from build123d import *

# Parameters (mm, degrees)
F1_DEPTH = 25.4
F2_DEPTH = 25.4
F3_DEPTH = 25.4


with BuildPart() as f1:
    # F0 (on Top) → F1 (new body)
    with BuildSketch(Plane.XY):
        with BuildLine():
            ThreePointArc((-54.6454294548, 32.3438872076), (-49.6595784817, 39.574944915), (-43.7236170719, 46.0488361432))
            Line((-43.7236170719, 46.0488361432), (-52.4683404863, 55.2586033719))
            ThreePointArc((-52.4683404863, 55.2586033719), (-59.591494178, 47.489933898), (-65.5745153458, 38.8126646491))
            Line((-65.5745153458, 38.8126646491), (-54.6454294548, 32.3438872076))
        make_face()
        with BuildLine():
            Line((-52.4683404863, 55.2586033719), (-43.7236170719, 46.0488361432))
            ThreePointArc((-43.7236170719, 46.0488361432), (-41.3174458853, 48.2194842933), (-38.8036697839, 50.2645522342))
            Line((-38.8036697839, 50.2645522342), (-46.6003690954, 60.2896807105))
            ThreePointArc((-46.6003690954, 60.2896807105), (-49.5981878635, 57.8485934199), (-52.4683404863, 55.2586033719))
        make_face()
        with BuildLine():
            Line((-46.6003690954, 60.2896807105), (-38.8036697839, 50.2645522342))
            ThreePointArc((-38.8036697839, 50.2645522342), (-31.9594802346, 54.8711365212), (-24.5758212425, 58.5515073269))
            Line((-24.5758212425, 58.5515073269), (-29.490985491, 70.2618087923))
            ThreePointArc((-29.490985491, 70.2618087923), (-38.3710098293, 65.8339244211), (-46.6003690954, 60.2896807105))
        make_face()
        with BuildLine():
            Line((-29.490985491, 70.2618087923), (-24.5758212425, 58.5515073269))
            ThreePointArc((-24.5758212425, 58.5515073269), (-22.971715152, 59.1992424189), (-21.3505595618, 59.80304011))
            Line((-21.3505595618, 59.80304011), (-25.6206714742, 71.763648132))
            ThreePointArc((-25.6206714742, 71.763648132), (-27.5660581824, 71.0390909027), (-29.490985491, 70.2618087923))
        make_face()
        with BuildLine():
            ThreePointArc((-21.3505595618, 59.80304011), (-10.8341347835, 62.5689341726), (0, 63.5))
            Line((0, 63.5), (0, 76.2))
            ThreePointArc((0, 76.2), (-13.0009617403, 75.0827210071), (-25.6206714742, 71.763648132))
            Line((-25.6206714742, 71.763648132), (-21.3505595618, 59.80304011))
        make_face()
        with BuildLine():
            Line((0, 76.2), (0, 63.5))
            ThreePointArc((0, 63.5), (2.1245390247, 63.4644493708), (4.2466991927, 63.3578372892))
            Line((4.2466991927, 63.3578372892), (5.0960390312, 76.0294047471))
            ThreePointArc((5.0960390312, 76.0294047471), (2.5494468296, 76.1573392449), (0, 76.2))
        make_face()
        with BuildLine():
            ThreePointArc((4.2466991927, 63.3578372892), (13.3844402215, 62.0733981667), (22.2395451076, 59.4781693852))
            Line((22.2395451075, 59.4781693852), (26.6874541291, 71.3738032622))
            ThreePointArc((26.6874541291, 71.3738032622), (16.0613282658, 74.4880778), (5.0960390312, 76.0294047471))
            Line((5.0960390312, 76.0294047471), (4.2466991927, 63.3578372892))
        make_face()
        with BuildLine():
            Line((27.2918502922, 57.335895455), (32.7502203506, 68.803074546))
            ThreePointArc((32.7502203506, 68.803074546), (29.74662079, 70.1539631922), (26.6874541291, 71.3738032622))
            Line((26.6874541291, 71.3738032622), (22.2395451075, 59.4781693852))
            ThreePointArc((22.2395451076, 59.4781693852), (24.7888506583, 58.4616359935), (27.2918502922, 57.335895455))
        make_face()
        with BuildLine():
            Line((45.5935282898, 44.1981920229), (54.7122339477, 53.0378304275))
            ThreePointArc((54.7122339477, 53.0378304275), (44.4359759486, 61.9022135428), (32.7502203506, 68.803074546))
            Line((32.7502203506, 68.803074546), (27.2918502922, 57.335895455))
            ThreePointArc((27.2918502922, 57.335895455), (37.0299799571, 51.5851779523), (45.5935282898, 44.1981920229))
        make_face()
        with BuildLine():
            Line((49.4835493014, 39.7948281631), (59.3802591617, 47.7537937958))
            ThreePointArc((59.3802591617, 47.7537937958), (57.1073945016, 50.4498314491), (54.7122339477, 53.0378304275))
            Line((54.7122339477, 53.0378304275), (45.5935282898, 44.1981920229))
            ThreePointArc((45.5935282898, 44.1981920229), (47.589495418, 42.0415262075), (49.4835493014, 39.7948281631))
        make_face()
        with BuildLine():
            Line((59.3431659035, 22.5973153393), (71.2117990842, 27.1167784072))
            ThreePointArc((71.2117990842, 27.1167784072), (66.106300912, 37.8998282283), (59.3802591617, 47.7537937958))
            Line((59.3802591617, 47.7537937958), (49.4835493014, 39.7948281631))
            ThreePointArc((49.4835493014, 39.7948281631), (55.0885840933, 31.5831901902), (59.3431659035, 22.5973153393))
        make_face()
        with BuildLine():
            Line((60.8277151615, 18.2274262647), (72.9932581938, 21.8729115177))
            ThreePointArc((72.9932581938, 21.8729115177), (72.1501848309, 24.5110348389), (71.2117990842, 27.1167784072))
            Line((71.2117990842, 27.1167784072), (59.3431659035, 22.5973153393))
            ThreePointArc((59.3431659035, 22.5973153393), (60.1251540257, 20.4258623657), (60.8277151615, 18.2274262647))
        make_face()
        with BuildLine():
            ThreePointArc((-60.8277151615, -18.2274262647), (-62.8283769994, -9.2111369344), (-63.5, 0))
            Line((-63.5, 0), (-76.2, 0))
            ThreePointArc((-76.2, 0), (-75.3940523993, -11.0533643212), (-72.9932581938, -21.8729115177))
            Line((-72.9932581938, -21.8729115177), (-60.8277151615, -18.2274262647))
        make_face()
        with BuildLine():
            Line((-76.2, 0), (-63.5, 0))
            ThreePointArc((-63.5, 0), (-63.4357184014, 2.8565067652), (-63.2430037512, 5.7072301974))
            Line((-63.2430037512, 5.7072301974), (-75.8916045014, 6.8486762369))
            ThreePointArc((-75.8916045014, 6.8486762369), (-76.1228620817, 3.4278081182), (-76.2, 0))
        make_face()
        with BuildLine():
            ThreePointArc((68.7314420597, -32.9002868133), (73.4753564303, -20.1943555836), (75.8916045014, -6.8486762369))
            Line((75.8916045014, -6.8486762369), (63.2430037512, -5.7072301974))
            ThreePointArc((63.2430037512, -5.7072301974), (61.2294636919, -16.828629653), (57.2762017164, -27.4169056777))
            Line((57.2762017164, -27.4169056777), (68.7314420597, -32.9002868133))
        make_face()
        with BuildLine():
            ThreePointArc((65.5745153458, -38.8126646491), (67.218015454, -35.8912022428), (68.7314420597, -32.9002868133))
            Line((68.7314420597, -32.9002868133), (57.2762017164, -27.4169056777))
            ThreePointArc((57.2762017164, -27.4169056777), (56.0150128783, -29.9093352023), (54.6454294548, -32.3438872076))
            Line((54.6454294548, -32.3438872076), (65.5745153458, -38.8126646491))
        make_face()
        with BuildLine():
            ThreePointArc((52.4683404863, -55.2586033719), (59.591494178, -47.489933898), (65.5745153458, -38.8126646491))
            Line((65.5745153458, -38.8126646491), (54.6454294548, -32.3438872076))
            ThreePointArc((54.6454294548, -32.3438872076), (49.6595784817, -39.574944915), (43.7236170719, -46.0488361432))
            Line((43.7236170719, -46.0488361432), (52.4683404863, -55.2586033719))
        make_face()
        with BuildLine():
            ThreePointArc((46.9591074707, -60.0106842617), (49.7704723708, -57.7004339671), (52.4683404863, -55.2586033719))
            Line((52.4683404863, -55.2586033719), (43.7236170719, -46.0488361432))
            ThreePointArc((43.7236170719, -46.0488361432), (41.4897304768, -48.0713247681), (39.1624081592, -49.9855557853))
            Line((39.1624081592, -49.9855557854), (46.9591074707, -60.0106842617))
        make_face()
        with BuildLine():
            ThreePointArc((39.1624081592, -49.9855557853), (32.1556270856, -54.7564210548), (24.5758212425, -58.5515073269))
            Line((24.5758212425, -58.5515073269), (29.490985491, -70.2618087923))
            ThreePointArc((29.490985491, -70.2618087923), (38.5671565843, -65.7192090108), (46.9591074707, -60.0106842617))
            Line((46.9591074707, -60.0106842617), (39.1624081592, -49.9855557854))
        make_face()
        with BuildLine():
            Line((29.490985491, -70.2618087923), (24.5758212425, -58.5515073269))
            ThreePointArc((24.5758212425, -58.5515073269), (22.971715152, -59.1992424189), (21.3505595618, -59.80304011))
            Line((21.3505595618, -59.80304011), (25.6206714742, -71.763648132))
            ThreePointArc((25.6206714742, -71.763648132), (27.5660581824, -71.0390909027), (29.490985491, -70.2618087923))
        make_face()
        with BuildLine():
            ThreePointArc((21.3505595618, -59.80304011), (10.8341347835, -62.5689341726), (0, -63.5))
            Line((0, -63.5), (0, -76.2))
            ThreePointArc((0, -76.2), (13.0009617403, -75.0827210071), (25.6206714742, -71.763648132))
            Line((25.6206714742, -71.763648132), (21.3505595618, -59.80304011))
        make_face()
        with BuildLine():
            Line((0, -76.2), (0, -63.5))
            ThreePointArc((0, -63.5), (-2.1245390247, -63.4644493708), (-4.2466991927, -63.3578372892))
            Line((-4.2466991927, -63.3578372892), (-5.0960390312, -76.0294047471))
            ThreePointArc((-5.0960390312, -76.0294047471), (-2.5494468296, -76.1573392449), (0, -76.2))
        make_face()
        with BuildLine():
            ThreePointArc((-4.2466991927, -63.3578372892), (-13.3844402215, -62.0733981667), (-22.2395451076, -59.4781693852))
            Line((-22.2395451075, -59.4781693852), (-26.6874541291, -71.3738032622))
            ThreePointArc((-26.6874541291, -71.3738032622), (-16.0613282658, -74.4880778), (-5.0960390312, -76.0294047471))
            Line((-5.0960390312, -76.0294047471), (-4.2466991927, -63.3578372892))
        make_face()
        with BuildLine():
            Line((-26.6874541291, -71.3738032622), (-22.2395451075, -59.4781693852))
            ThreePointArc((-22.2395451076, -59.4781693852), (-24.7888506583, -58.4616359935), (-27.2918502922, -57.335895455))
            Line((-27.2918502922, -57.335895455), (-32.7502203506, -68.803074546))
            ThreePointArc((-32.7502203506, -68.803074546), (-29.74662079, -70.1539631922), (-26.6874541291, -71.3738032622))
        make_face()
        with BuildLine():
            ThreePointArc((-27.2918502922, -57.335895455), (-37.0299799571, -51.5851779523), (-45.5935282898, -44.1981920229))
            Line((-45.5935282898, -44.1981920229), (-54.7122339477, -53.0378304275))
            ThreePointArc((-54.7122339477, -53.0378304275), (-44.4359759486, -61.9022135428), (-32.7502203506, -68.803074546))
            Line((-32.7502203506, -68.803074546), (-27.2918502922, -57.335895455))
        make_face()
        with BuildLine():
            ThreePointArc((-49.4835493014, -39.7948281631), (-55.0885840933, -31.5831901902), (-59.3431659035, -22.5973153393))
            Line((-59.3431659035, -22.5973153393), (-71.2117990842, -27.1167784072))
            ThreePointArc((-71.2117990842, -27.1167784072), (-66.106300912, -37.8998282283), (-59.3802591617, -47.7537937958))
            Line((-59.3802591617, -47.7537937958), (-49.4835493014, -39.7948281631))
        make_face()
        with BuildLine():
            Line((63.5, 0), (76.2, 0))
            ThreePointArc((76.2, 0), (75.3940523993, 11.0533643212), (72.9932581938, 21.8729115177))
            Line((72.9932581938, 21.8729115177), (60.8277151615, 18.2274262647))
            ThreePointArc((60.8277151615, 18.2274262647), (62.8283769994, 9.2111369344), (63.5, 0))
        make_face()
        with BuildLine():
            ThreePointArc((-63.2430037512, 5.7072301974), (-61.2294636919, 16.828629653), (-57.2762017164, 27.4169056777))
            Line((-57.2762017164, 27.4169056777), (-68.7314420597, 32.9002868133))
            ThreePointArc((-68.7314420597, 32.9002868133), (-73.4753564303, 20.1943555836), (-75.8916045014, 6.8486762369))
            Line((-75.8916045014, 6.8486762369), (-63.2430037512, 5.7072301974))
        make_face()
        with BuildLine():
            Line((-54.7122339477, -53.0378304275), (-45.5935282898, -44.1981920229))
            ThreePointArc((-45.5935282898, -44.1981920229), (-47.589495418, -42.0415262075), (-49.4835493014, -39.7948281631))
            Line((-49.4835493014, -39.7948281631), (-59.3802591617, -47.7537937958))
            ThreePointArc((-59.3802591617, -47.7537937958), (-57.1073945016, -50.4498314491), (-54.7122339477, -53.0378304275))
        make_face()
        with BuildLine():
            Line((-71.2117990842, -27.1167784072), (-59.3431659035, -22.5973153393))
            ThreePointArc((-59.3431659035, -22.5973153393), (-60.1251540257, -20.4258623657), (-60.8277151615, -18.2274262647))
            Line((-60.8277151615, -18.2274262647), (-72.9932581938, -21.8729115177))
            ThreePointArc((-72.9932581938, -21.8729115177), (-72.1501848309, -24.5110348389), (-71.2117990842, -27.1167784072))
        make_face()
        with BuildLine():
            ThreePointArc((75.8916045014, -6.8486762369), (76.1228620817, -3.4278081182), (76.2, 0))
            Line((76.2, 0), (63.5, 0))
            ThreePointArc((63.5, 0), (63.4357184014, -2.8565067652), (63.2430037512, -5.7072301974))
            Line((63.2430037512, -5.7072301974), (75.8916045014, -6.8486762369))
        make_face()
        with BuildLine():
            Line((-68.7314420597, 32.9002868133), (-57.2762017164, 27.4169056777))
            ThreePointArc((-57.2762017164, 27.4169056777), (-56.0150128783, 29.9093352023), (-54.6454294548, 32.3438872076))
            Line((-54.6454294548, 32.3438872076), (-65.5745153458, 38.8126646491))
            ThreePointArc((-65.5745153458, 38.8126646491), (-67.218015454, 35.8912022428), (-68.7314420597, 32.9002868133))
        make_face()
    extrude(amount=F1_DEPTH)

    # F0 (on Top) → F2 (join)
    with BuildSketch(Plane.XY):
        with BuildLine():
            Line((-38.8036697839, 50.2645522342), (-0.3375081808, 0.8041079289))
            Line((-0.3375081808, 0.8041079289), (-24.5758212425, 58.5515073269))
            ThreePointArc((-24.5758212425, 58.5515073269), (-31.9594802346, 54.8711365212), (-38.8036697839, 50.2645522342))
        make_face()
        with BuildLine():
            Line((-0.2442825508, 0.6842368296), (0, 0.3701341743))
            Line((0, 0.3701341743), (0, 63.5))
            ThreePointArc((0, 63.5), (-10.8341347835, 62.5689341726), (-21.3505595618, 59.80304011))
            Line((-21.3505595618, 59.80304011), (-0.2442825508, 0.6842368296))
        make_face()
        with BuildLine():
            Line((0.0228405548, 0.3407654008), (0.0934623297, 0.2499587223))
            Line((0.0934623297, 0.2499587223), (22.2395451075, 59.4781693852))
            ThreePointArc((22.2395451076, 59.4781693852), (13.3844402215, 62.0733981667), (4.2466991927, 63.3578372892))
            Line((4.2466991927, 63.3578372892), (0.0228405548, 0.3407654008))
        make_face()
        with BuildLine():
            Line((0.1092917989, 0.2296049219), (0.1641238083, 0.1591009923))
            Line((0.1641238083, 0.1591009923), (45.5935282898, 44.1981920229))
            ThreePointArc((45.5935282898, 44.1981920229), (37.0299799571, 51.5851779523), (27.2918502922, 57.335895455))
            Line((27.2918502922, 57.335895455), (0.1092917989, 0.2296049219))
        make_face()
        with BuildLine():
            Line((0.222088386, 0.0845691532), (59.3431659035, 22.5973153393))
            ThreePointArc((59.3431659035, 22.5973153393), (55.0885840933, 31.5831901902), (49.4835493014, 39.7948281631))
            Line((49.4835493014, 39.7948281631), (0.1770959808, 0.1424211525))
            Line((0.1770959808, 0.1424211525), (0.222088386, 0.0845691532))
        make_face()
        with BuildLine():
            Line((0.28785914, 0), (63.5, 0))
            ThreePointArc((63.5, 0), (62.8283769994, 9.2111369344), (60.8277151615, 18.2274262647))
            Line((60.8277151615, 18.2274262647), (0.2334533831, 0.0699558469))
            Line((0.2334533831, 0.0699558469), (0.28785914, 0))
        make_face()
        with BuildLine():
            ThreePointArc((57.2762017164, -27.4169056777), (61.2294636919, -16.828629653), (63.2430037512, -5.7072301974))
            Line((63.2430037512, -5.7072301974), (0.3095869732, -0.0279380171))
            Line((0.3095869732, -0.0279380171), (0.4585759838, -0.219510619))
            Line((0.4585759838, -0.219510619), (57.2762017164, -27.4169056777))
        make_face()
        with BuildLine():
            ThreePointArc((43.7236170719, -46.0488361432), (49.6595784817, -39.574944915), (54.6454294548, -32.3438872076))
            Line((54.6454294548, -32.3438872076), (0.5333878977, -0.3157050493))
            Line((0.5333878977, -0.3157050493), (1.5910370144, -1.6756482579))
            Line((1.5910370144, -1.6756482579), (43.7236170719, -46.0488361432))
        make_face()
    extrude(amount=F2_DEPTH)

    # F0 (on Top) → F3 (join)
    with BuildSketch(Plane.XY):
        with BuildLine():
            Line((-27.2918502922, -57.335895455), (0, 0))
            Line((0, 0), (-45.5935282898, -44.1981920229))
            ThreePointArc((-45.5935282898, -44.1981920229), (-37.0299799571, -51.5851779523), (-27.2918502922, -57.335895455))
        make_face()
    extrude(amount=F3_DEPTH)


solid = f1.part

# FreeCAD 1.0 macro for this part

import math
import FreeCAD as App
import Part
import Sketcher

V = App.Vector
Q = App.Units.Quantity

doc = App.newDocument("Part")
params = doc.addObject("Spreadsheet::Sheet", "Params")
for row, (alias, value) in enumerate([
    ("sketch1_radius", "3 in"),
    ("sketch1_radius2", "2.5 in"),
    ("pad1_length", "1 in"),
    ("sketch2_radius", "2.5 in"),
    ("sketch2_radius2", "2.5 in"),
    ("sketch2_radius3", "2.5 in"),
    ("sketch2_radius4", "2.5 in"),
    ("sketch2_radius5", "2.5 in"),
    ("pad2_length", "1 in"),
    ("sketch3_radius", "2.5 in"),
    ("pad3_length", "1 in"),
], start=1):
    params.set(f"A{row}", alias)
    params.set(f"B{row}", "=" + value)
    params.setAlias(f"B{row}", alias)

body = doc.addObject("PartDesign::Body", "Body")

# Sketch on XY plane
sketch1 = body.newObject("Sketcher::SketchObject", "Sketch")
sketch1.AttachmentSupport = (doc.getObject("XY_Plane"), [""])
sketch1.MapMode = "FlatFace"
sketch1.addGeometry([
    Part.ArcOfCircle(Part.Circle(V(0, 0, 0), V(0, 0, 1), 76.2), math.radians(154), math.radians(175)),  # 0
    Part.ArcOfCircle(Part.Circle(V(0, 0, 0), V(0, 0, 1), 76.2), math.radians(174.84), math.radians(180)),  # 1
    Part.ArcOfCircle(Part.Circle(V(0, 0, 0), V(0, 0, 1), 76.2), math.radians(180), math.radians(196.68)),  # 2
    Part.ArcOfCircle(Part.Circle(V(0, 0, 0), V(0, 0, 1), 76.2), math.radians(-163.32), math.radians(-159.15)),  # 3
    Part.ArcOfCircle(Part.Circle(V(0, 0, 0), V(0, 0, 1), 76.2), math.radians(-159.15), math.radians(-141.19)),  # 4
    Part.ArcOfCircle(Part.Circle(V(0, 0, 0), V(0, 0, 1), 76.2), math.radians(-141.19), math.radians(-135.89)),  # 5
    Part.ArcOfCircle(Part.Circle(V(0, 0, 0), V(0, 0, 1), 76.2), math.radians(-136), math.radians(-115)),  # 6
    Part.ArcOfCircle(Part.Circle(V(0, 0, 0), V(0, 0, 1), 76.2), math.radians(-115.45), math.radians(-110.5)),  # 7
    Part.ArcOfCircle(Part.Circle(V(0, 0, 0), V(0, 0, 1), 76.2), math.radians(-110.5), math.radians(-93.83)),  # 8
    Part.ArcOfCircle(Part.Circle(V(0, 0, 0), V(0, 0, 1), 76.2), math.radians(-93.83), math.radians(-90)),  # 9
    Part.ArcOfCircle(Part.Circle(V(0, 0, 0), V(0, 0, 1), 76.2), math.radians(-90), math.radians(-70.35)),  # 10
    Part.ArcOfCircle(Part.Circle(V(0, 0, 0), V(0, 0, 1), 76.2), math.radians(-70.35), math.radians(-67.23)),  # 11
    Part.ArcOfCircle(Part.Circle(V(0, 0, 0), V(0, 0, 1), 76.2), math.radians(-67.23), math.radians(-51.96)),  # 12
    Part.ArcOfCircle(Part.Circle(V(0, 0, 0), V(0, 0, 1), 76.2), math.radians(-51.96), math.radians(-46.48)),  # 13
    Part.ArcOfCircle(Part.Circle(V(0, 0, 0), V(0, 0, 1), 76.2), math.radians(-46.48), math.radians(-30.62)),  # 14
    Part.ArcOfCircle(Part.Circle(V(0, 0, 0), V(0, 0, 1), 76.2), math.radians(-30.62), math.radians(-25.58)),  # 15
    Part.ArcOfCircle(Part.Circle(V(0, 0, 0), V(0, 0, 1), 76.2), math.radians(-26), math.radians(-5)),  # 16
    Part.ArcOfCircle(Part.Circle(V(0, 0, 0), V(0, 0, 1), 76.2), math.radians(-5.16), math.radians(0)),  # 17
    Part.ArcOfCircle(Part.Circle(V(0, 0, 0), V(0, 0, 1), 76.2), math.radians(0), math.radians(16.68)),  # 18
    Part.ArcOfCircle(Part.Circle(V(0, 0, 0), V(0, 0, 1), 76.2), math.radians(16.68), math.radians(20.85)),  # 19
    Part.ArcOfCircle(Part.Circle(V(0, 0, 0), V(0, 0, 1), 76.2), math.radians(20.85), math.radians(38.81)),  # 20
    Part.ArcOfCircle(Part.Circle(V(0, 0, 0), V(0, 0, 1), 76.2), math.radians(38.81), math.radians(44.11)),  # 21
    Part.ArcOfCircle(Part.Circle(V(0, 0, 0), V(0, 0, 1), 76.2), math.radians(44), math.radians(65)),  # 22
    Part.ArcOfCircle(Part.Circle(V(0, 0, 0), V(0, 0, 1), 76.2), math.radians(64.55), math.radians(69.5)),  # 23
    Part.ArcOfCircle(Part.Circle(V(0, 0, 0), V(0, 0, 1), 76.2), math.radians(69.5), math.radians(86.17)),  # 24
    Part.ArcOfCircle(Part.Circle(V(0, 0, 0), V(0, 0, 1), 76.2), math.radians(86.17), math.radians(90)),  # 25
    Part.ArcOfCircle(Part.Circle(V(0, 0, 0), V(0, 0, 1), 76.2), math.radians(90), math.radians(109.65)),  # 26
    Part.ArcOfCircle(Part.Circle(V(0, 0, 0), V(0, 0, 1), 76.2), math.radians(109.65), math.radians(112.77)),  # 27
    Part.ArcOfCircle(Part.Circle(V(0, 0, 0), V(0, 0, 1), 76.2), math.radians(112.77), math.radians(127.7)),  # 28
    Part.ArcOfCircle(Part.Circle(V(0, 0, 0), V(0, 0, 1), 76.2), math.radians(127.7), math.radians(133.52)),  # 29
    Part.ArcOfCircle(Part.Circle(V(0, 0, 0), V(0, 0, 1), 76.2), math.radians(133.52), math.radians(149.38)),  # 30
    Part.ArcOfCircle(Part.Circle(V(0, 0, 0), V(0, 0, 1), 76.2), math.radians(149.38), math.radians(154.42)),  # 31
    Part.ArcOfCircle(Part.Circle(V(0, 0, 0), V(0, 0, 1), 63.5), math.radians(133.52), math.radians(149.38)),  # 32
    Part.ArcOfCircle(Part.Circle(V(0, 0, 0), V(0, 0, 1), 63.5), math.radians(127.67), math.radians(133.52)),  # 33
    Part.ArcOfCircle(Part.Circle(V(0, 0, 0), V(0, 0, 1), 63.5), math.radians(112.77), math.radians(127.67)),  # 34
    Part.ArcOfCircle(Part.Circle(V(0, 0, 0), V(0, 0, 1), 63.5), math.radians(109.65), math.radians(112.77)),  # 35
    Part.ArcOfCircle(Part.Circle(V(0, 0, 0), V(0, 0, 1), 63.5), math.radians(90), math.radians(109.65)),  # 36
    Part.ArcOfCircle(Part.Circle(V(0, 0, 0), V(0, 0, 1), 63.5), math.radians(86.17), math.radians(90)),  # 37
    Part.ArcOfCircle(Part.Circle(V(0, 0, 0), V(0, 0, 1), 63.5), math.radians(69.5), math.radians(86.17)),  # 38
    Part.ArcOfCircle(Part.Circle(V(0, 0, 0), V(0, 0, 1), 63.5), math.radians(64.55), math.radians(69.5)),  # 39
    Part.ArcOfCircle(Part.Circle(V(0, 0, 0), V(0, 0, 1), 63.5), math.radians(44), math.radians(65)),  # 40
    Part.ArcOfCircle(Part.Circle(V(0, 0, 0), V(0, 0, 1), 63.5), math.radians(38.81), math.radians(44.11)),  # 41
    Part.ArcOfCircle(Part.Circle(V(0, 0, 0), V(0, 0, 1), 63.5), math.radians(20.85), math.radians(38.81)),  # 42
    Part.ArcOfCircle(Part.Circle(V(0, 0, 0), V(0, 0, 1), 63.5), math.radians(16.68), math.radians(20.85)),  # 43
    Part.ArcOfCircle(Part.Circle(V(0, 0, 0), V(0, 0, 1), 63.5), math.radians(0), math.radians(16.68)),  # 44
    Part.ArcOfCircle(Part.Circle(V(0, 0, 0), V(0, 0, 1), 63.5), math.radians(-26), math.radians(0)),  # 45
    Part.ArcOfCircle(Part.Circle(V(0, 0, 0), V(0, 0, 1), 63.5), math.radians(-30.62), math.radians(-25.58)),  # 46
    Part.ArcOfCircle(Part.Circle(V(0, 0, 0), V(0, 0, 1), 63.5), math.radians(-46.48), math.radians(-30.62)),  # 47
    Part.ArcOfCircle(Part.Circle(V(0, 0, 0), V(0, 0, 1), 63.5), math.radians(-51.92), math.radians(-46.48)),  # 48
    Part.ArcOfCircle(Part.Circle(V(0, 0, 0), V(0, 0, 1), 63.5), math.radians(-67.23), math.radians(-51.92)),  # 49
    Part.ArcOfCircle(Part.Circle(V(0, 0, 0), V(0, 0, 1), 63.5), math.radians(-70.35), math.radians(-67.23)),  # 50
    Part.ArcOfCircle(Part.Circle(V(0, 0, 0), V(0, 0, 1), 63.5), math.radians(-90), math.radians(-70.35)),  # 51
    Part.ArcOfCircle(Part.Circle(V(0, 0, 0), V(0, 0, 1), 63.5), math.radians(-93.83), math.radians(-90)),  # 52
    Part.ArcOfCircle(Part.Circle(V(0, 0, 0), V(0, 0, 1), 63.5), math.radians(-110.5), math.radians(-93.83)),  # 53
    Part.ArcOfCircle(Part.Circle(V(0, 0, 0), V(0, 0, 1), 63.5), math.radians(-115.45), math.radians(-110.5)),  # 54
    Part.ArcOfCircle(Part.Circle(V(0, 0, 0), V(0, 0, 1), 63.5), math.radians(-136), math.radians(-115)),  # 55
    Part.ArcOfCircle(Part.Circle(V(0, 0, 0), V(0, 0, 1), 63.5), math.radians(-141.19), math.radians(-135.89)),  # 56
    Part.ArcOfCircle(Part.Circle(V(0, 0, 0), V(0, 0, 1), 63.5), math.radians(-159.15), math.radians(-141.19)),  # 57
    Part.ArcOfCircle(Part.Circle(V(0, 0, 0), V(0, 0, 1), 63.5), math.radians(-163.32), math.radians(-159.15)),  # 58
    Part.ArcOfCircle(Part.Circle(V(0, 0, 0), V(0, 0, 1), 63.5), math.radians(180), math.radians(196.68)),  # 59
    Part.ArcOfCircle(Part.Circle(V(0, 0, 0), V(0, 0, 1), 63.5), math.radians(154), math.radians(180)),  # 60
    Part.ArcOfCircle(Part.Circle(V(0, 0, 0), V(0, 0, 1), 63.5), math.radians(149.38), math.radians(154.42)),  # 61
], False)
sketch1.addConstraint([
    Sketcher.Constraint("Tangent", 0, 2, 1, 1),
    Sketcher.Constraint("Tangent", 1, 2, 2, 1),
    Sketcher.Constraint("Tangent", 2, 2, 3, 1),
    Sketcher.Constraint("Tangent", 3, 2, 4, 1),
    Sketcher.Constraint("Tangent", 4, 2, 5, 1),
    Sketcher.Constraint("Tangent", 5, 2, 6, 1),
    Sketcher.Constraint("Tangent", 6, 2, 7, 1),
    Sketcher.Constraint("Tangent", 7, 2, 8, 1),
    Sketcher.Constraint("Tangent", 8, 2, 9, 1),
    Sketcher.Constraint("Tangent", 9, 2, 10, 1),
    Sketcher.Constraint("Tangent", 10, 2, 11, 1),
    Sketcher.Constraint("Tangent", 11, 2, 12, 1),
    Sketcher.Constraint("Tangent", 12, 2, 13, 1),
    Sketcher.Constraint("Tangent", 13, 2, 14, 1),
    Sketcher.Constraint("Tangent", 14, 2, 15, 1),
    Sketcher.Constraint("Tangent", 15, 2, 16, 1),
    Sketcher.Constraint("Tangent", 16, 2, 17, 1),
    Sketcher.Constraint("Tangent", 17, 2, 18, 1),
    Sketcher.Constraint("Tangent", 18, 2, 19, 1),
    Sketcher.Constraint("Tangent", 19, 2, 20, 1),
    Sketcher.Constraint("Tangent", 20, 2, 21, 1),
    Sketcher.Constraint("Tangent", 21, 2, 22, 1),
    Sketcher.Constraint("Tangent", 22, 2, 23, 1),
    Sketcher.Constraint("Tangent", 23, 2, 24, 1),
    Sketcher.Constraint("Tangent", 24, 2, 25, 1),
    Sketcher.Constraint("Tangent", 25, 2, 26, 1),
    Sketcher.Constraint("Tangent", 26, 2, 27, 1),
    Sketcher.Constraint("Tangent", 27, 2, 28, 1),
    Sketcher.Constraint("Tangent", 28, 2, 29, 1),
    Sketcher.Constraint("Tangent", 29, 2, 30, 1),
    Sketcher.Constraint("Tangent", 30, 2, 31, 1),
    Sketcher.Constraint("Tangent", 31, 2, 0, 1),
    Sketcher.Constraint("Tangent", 32, 1, 33, 2),
    Sketcher.Constraint("Tangent", 33, 1, 34, 2),
    Sketcher.Constraint("Tangent", 34, 1, 35, 2),
    Sketcher.Constraint("Tangent", 35, 1, 36, 2),
    Sketcher.Constraint("Tangent", 36, 1, 37, 2),
    Sketcher.Constraint("Tangent", 37, 1, 38, 2),
    Sketcher.Constraint("Tangent", 38, 1, 39, 2),
    Sketcher.Constraint("Tangent", 39, 1, 40, 2),
    Sketcher.Constraint("Tangent", 40, 1, 41, 2),
    Sketcher.Constraint("Tangent", 41, 1, 42, 2),
    Sketcher.Constraint("Tangent", 42, 1, 43, 2),
    Sketcher.Constraint("Tangent", 43, 1, 44, 2),
    Sketcher.Constraint("Tangent", 44, 1, 45, 2),
    Sketcher.Constraint("Tangent", 45, 1, 46, 2),
    Sketcher.Constraint("Tangent", 46, 1, 47, 2),
    Sketcher.Constraint("Tangent", 47, 1, 48, 2),
    Sketcher.Constraint("Tangent", 48, 1, 49, 2),
    Sketcher.Constraint("Tangent", 49, 1, 50, 2),
    Sketcher.Constraint("Tangent", 50, 1, 51, 2),
    Sketcher.Constraint("Tangent", 51, 1, 52, 2),
    Sketcher.Constraint("Tangent", 52, 1, 53, 2),
    Sketcher.Constraint("Tangent", 53, 1, 54, 2),
    Sketcher.Constraint("Tangent", 54, 1, 55, 2),
    Sketcher.Constraint("Tangent", 55, 1, 56, 2),
    Sketcher.Constraint("Tangent", 56, 1, 57, 2),
    Sketcher.Constraint("Tangent", 57, 1, 58, 2),
    Sketcher.Constraint("Tangent", 58, 1, 59, 2),
    Sketcher.Constraint("Tangent", 59, 1, 60, 2),
    Sketcher.Constraint("Tangent", 60, 1, 61, 2),
    Sketcher.Constraint("Tangent", 61, 1, 32, 2),
    Sketcher.Constraint("Coincident", 0, 3, -1, 1),
    Sketcher.Constraint("Coincident", 2, 3, -1, 1),
    Sketcher.Constraint("Coincident", 4, 3, -1, 1),
    Sketcher.Constraint("Coincident", 6, 3, -1, 1),
    Sketcher.Constraint("Coincident", 8, 3, -1, 1),
    Sketcher.Constraint("Coincident", 10, 3, -1, 1),
    Sketcher.Constraint("Coincident", 12, 3, -1, 1),
    Sketcher.Constraint("Coincident", 14, 3, -1, 1),
    Sketcher.Constraint("Coincident", 16, 3, -1, 1),
    Sketcher.Constraint("Coincident", 18, 3, -1, 1),
    Sketcher.Constraint("Coincident", 20, 3, -1, 1),
    Sketcher.Constraint("Coincident", 22, 3, -1, 1),
    Sketcher.Constraint("Coincident", 24, 3, -1, 1),
    Sketcher.Constraint("Coincident", 26, 3, -1, 1),
    Sketcher.Constraint("Coincident", 28, 3, -1, 1),
    Sketcher.Constraint("Coincident", 32, 3, -1, 1),
    Sketcher.Constraint("Coincident", 34, 3, -1, 1),
    Sketcher.Constraint("Coincident", 36, 3, -1, 1),
    Sketcher.Constraint("Coincident", 38, 3, -1, 1),
    Sketcher.Constraint("Coincident", 40, 3, -1, 1),
    Sketcher.Constraint("Coincident", 42, 3, -1, 1),
    Sketcher.Constraint("Coincident", 44, 3, -1, 1),
    Sketcher.Constraint("Coincident", 46, 3, -1, 1),
    Sketcher.Constraint("Coincident", 48, 3, -1, 1),
    Sketcher.Constraint("Coincident", 50, 3, -1, 1),
    Sketcher.Constraint("Coincident", 52, 3, -1, 1),
    Sketcher.Constraint("Coincident", 54, 3, -1, 1),
    Sketcher.Constraint("Coincident", 56, 3, -1, 1),
    Sketcher.Constraint("Coincident", 58, 3, -1, 1),
    Sketcher.Constraint("Equal", 28, 29),
    Sketcher.Constraint("Equal", 58, 59),
    Sketcher.Constraint("PointOnObject", 1, 2, -1),
    Sketcher.Constraint("PointOnObject", 9, 2, -2),
    Sketcher.Constraint("PointOnObject", 17, 2, -1),
    Sketcher.Constraint("PointOnObject", 25, 2, -2),
    Sketcher.Constraint("PointOnObject", 36, 1, -2),
    Sketcher.Constraint("PointOnObject", 44, 1, -1),
    Sketcher.Constraint("PointOnObject", 51, 1, -2),
    Sketcher.Constraint("PointOnObject", 59, 1, -1),
    Sketcher.Constraint("Radius", 0, Q("3 in")),
    Sketcher.Constraint("Radius", 32, Q("2.5 in")),
    Sketcher.Constraint("DistanceX", 3, 2, -1, 1, Q("71.211799 mm")),
    Sketcher.Constraint("DistanceX", -1, 1, 19, 2, Q("71.211799 mm")),
    Sketcher.Constraint("DistanceX", -1, 1, 37, 1, Q("4.246699 mm")),
    Sketcher.Constraint("DistanceX", -1, 1, 45, 1, Q("57.276202 mm")),
    Sketcher.Constraint("DistanceX", 52, 1, -1, 1, Q("4.246699 mm")),
    Sketcher.Constraint("DistanceX", 60, 1, -1, 1, Q("57.276202 mm")),
    Sketcher.Constraint("DistanceX", 2, 2, -1, 1, Q("72.993258 mm")),
    Sketcher.Constraint("DistanceX", 4, 2, -1, 1, Q("59.380259 mm")),
    Sketcher.Constraint("DistanceY", 5, 2, -1, 1, Q("53.03783 mm")),
    Sketcher.Constraint("DistanceX", 6, 2, -1, 1, Q("32.75022 mm")),
    Sketcher.Constraint("DistanceX", 8, 2, -1, 1, Q("5.096039 mm")),
    Sketcher.Constraint("DistanceX", -1, 1, 10, 2, Q("25.620671 mm")),
    Sketcher.Constraint("DistanceY", 11, 2, -1, 1, Q("70.261809 mm")),
    Sketcher.Constraint("DistanceX", -1, 1, 13, 2, Q("52.46834 mm")),
    Sketcher.Constraint("DistanceX", -1, 1, 18, 2, Q("72.993258 mm")),
    Sketcher.Constraint("DistanceX", -1, 1, 20, 2, Q("59.380259 mm")),
    Sketcher.Constraint("DistanceY", -1, 1, 21, 2, Q("53.03783 mm")),
    Sketcher.Constraint("DistanceX", -1, 1, 22, 2, Q("32.75022 mm")),
    Sketcher.Constraint("DistanceX", -1, 1, 24, 2, Q("5.096039 mm")),
    Sketcher.Constraint("DistanceX", 26, 2, -1, 1, Q("25.620671 mm")),
    Sketcher.Constraint("DistanceY", -1, 1, 27, 2, Q("70.261809 mm")),
    Sketcher.Constraint("DistanceX", 28, 2, -1, 1, Q("46.600369 mm")),
    Sketcher.Constraint("DistanceX", 29, 2, -1, 1, Q("52.46834 mm")),
    Sketcher.Constraint("DistanceX", 33, 1, -1, 1, Q("38.80367 mm")),
    Sketcher.Constraint("DistanceX", 34, 1, -1, 1, Q("24.575821 mm")),
    Sketcher.Constraint("DistanceX", 35, 1, -1, 1, Q("21.35056 mm")),
    Sketcher.Constraint("DistanceY", -1, 1, 38, 1, Q("59.478169 mm")),
    Sketcher.Constraint("DistanceX", -1, 1, 39, 1, Q("27.29185 mm")),
    Sketcher.Constraint("DistanceX", -1, 1, 40, 1, Q("45.593528 mm")),
    Sketcher.Constraint("DistanceX", -1, 1, 41, 1, Q("49.483549 mm")),
    Sketcher.Constraint("DistanceX", -1, 1, 46, 1, Q("54.645429 mm")),
    Sketcher.Constraint("DistanceX", -1, 1, 48, 1, Q("39.162408 mm")),
    Sketcher.Constraint("DistanceX", -1, 1, 49, 1, Q("24.575821 mm")),
    Sketcher.Constraint("DistanceX", -1, 1, 50, 1, Q("21.35056 mm")),
    Sketcher.Constraint("DistanceY", 53, 1, -1, 1, Q("59.478169 mm")),
    Sketcher.Constraint("DistanceX", 54, 1, -1, 1, Q("27.29185 mm")),
    Sketcher.Constraint("DistanceX", 55, 1, -1, 1, Q("45.593528 mm")),
    Sketcher.Constraint("DistanceX", 56, 1, -1, 1, Q("49.483549 mm")),
    Sketcher.Constraint("DistanceX", 61, 1, -1, 1, Q("54.645429 mm")),
    Sketcher.Constraint("DistanceX", 0, 2, -1, 1, Q("75.891605 mm")),
    Sketcher.Constraint("DistanceX", 7, 2, -1, 1, Q("26.687454 mm")),
    Sketcher.Constraint("DistanceX", -1, 1, 12, 2, Q("46.959107 mm")),
    Sketcher.Constraint("DistanceX", -1, 1, 14, 2, Q("65.574515 mm")),
    Sketcher.Constraint("DistanceX", -1, 1, 15, 2, Q("68.731442 mm")),
    Sketcher.Constraint("DistanceX", -1, 1, 16, 2, Q("75.891605 mm")),
    Sketcher.Constraint("DistanceX", -1, 1, 23, 2, Q("26.687454 mm")),
    Sketcher.Constraint("DistanceX", 30, 2, -1, 1, Q("65.574515 mm")),
    Sketcher.Constraint("DistanceX", 31, 2, -1, 1, Q("68.731442 mm")),
    Sketcher.Constraint("DistanceX", 32, 1, -1, 1, Q("43.723617 mm")),
    Sketcher.Constraint("DistanceX", -1, 1, 42, 1, Q("59.343166 mm")),
    Sketcher.Constraint("DistanceX", -1, 1, 43, 1, Q("60.827715 mm")),
    Sketcher.Constraint("DistanceX", -1, 1, 47, 1, Q("43.723617 mm")),
    Sketcher.Constraint("DistanceX", 57, 1, -1, 1, Q("59.343166 mm")),
    Sketcher.Constraint("DistanceX", 58, 1, -1, 1, Q("60.827715 mm")),
])
sketch1.setExpression("Constraints[101]", "Params.sketch1_radius")
sketch1.setExpression("Constraints[102]", "Params.sketch1_radius2")
pad1 = body.newObject("PartDesign::Pad", "Pad")
pad1.Profile = sketch1
pad1.setExpression("Length", "Params.pad1_length")

# Sketch on XY plane
sketch2 = body.newObject("Sketcher::SketchObject", "Sketch001")
sketch2.AttachmentSupport = (doc.getObject("XY_Plane"), [""])
sketch2.MapMode = "FlatFace"
sketch2.addGeometry([
    Part.LineSegment(V(-38.80367, 50.264552, 0), V(-0.337508, 0.804108, 0)),  # 0
    Part.LineSegment(V(-0.337508, 0.804108, 0), V(-24.575821, 58.551507, 0)),  # 1
    Part.ArcOfCircle(Part.Circle(V(0, 0, 0), V(0, 0, 1), 63.5), math.radians(112.769252), math.radians(127.667737)),  # 2
    Part.LineSegment(V(-0.244283, 0.684237, 0), V(0, 0.370134, 0)),  # 3
    Part.LineSegment(V(0, 0.370134, 0), V(0, 63.5, 0)),  # 4
    Part.ArcOfCircle(Part.Circle(V(0, 0, 0), V(0, 0, 1), 63.5), math.radians(90), math.radians(109.647307)),  # 5
    Part.LineSegment(V(-21.35056, 59.80304, 0), V(-0.244283, 0.684237, 0)),  # 6
    Part.LineSegment(V(0.022841, 0.340765, 0), V(0.093462, 0.249959, 0)),  # 7
    Part.LineSegment(V(0.093462, 0.249959, 0), V(22.239545, 59.478169, 0)),  # 8
    Part.ArcOfCircle(Part.Circle(V(0, 0, 0), V(0, 0, 1), 63.5), math.radians(69.498674), math.radians(86.165359)),  # 9
    Part.LineSegment(V(4.246699, 63.357837, 0), V(0.022841, 0.340765, 0)),  # 10
    Part.LineSegment(V(0.109292, 0.229605, 0), V(0.164124, 0.159101, 0)),  # 11
    Part.LineSegment(V(0.164124, 0.159101, 0), V(45.593528, 44.198192, 0)),  # 12
    Part.ArcOfCircle(Part.Circle(V(0, 0, 0), V(0, 0, 1), 63.5), math.radians(44.109713), math.radians(64.545581)),  # 13
    Part.LineSegment(V(27.29185, 57.335895, 0), V(0.109292, 0.229605, 0)),  # 14
    Part.LineSegment(V(0.222088, 0.084569, 0), V(59.343166, 22.597315, 0)),  # 15
    Part.ArcOfCircle(Part.Circle(V(0, 0, 0), V(0, 0, 1), 63.5), math.radians(20.846359), math.radians(38.806352)),  # 16
    Part.LineSegment(V(49.483549, 39.794828, 0), V(0.177096, 0.142421, 0)),  # 17
    Part.LineSegment(V(0.177096, 0.142421, 0), V(0.222088, 0.084569, 0)),  # 18
    Part.LineSegment(V(0.287859, 0, 0), V(63.5, 0, 0)),  # 19
    Part.ArcOfCircle(Part.Circle(V(0, 0, 0), V(0, 0, 1), 63.5), math.radians(0), math.radians(16.681192)),  # 20
    Part.LineSegment(V(60.827715, 18.227426, 0), V(0.233453, 0.069956, 0)),  # 21
    Part.LineSegment(V(0.233453, 0.069956, 0), V(0.287859, 0, 0)),  # 22
    Part.ArcOfCircle(Part.Circle(V(0, 0, 0), V(0, 0, 1), 63.5), math.radians(-25.579452), math.radians(-5.156568)),  # 23
    Part.LineSegment(V(63.243004, -5.70723, 0), V(0.309587, -0.027938, 0)),  # 24
    Part.LineSegment(V(0.309587, -0.027938, 0), V(0.458576, -0.219511, 0)),  # 25
    Part.LineSegment(V(0.458576, -0.219511, 0), V(57.276202, -27.416906, 0)),  # 26
    Part.ArcOfCircle(Part.Circle(V(0, 0, 0), V(0, 0, 1), 63.5), math.radians(-46.483701), math.radians(-30.620713)),  # 27
    Part.LineSegment(V(54.645429, -32.343887, 0), V(0.533388, -0.315705, 0)),  # 28
    Part.LineSegment(V(0.533388, -0.315705, 0), V(1.591037, -1.675648, 0)),  # 29
    Part.LineSegment(V(1.591037, -1.675648, 0), V(43.723617, -46.048836, 0)),  # 30
], False)
sketch2.addConstraint([
    Sketcher.Constraint("Coincident", 0, 2, 1, 1),
    Sketcher.Constraint("Coincident", 1, 2, 2, 1),
    Sketcher.Constraint("Coincident", 2, 2, 0, 1),
    Sketcher.Constraint("Coincident", 3, 2, 4, 1),
    Sketcher.Constraint("Coincident", 4, 2, 5, 1),
    Sketcher.Constraint("Coincident", 5, 2, 6, 1),
    Sketcher.Constraint("Coincident", 6, 2, 3, 1),
    Sketcher.Constraint("Coincident", 7, 2, 8, 1),
    Sketcher.Constraint("Coincident", 8, 2, 9, 1),
    Sketcher.Constraint("Coincident", 9, 2, 10, 1),
    Sketcher.Constraint("Coincident", 10, 2, 7, 1),
    Sketcher.Constraint("Coincident", 11, 2, 12, 1),
    Sketcher.Constraint("Coincident", 12, 2, 13, 1),
    Sketcher.Constraint("Coincident", 13, 2, 14, 1),
    Sketcher.Constraint("Coincident", 14, 2, 11, 1),
    Sketcher.Constraint("Coincident", 15, 2, 16, 1),
    Sketcher.Constraint("Coincident", 16, 2, 17, 1),
    Sketcher.Constraint("Coincident", 17, 2, 18, 1),
    Sketcher.Constraint("Coincident", 18, 2, 15, 1),
    Sketcher.Constraint("Coincident", 19, 2, 20, 1),
    Sketcher.Constraint("Coincident", 20, 2, 21, 1),
    Sketcher.Constraint("Coincident", 21, 2, 22, 1),
    Sketcher.Constraint("Coincident", 22, 2, 19, 1),
    Sketcher.Constraint("Coincident", 23, 2, 24, 1),
    Sketcher.Constraint("Coincident", 24, 2, 25, 1),
    Sketcher.Constraint("Coincident", 25, 2, 26, 1),
    Sketcher.Constraint("Coincident", 26, 2, 23, 1),
    Sketcher.Constraint("Coincident", 27, 2, 28, 1),
    Sketcher.Constraint("Coincident", 28, 2, 29, 1),
    Sketcher.Constraint("Coincident", 29, 2, 30, 1),
    Sketcher.Constraint("Coincident", 30, 2, 27, 1),
    Sketcher.Constraint("Vertical", 4),
    Sketcher.Constraint("Horizontal", 19),
    Sketcher.Constraint("Coincident", 2, 3, -1, 1),
    Sketcher.Constraint("Coincident", 5, 3, -1, 1),
    Sketcher.Constraint("Coincident", 9, 3, -1, 1),
    Sketcher.Constraint("Coincident", 13, 3, -1, 1),
    Sketcher.Constraint("Coincident", 16, 3, -1, 1),
    Sketcher.Constraint("Coincident", 20, 3, -1, 1),
    Sketcher.Constraint("Coincident", 23, 3, -1, 1),
    Sketcher.Constraint("Coincident", 27, 3, -1, 1),
    Sketcher.Constraint("PointOnObject", 3, 2, -2),
    Sketcher.Constraint("PointOnObject", 19, 2, -1),
    Sketcher.Constraint("Radius", 2, Q("2.5 in")),
    Sketcher.Constraint("Radius", 5, Q("2.5 in")),
    Sketcher.Constraint("Radius", 9, Q("2.5 in")),
    Sketcher.Constraint("Radius", 13, Q("2.5 in")),
    Sketcher.Constraint("Radius", 16, Q("2.5 in")),
    Sketcher.Constraint("Radius", 20, Q("2.5 in")),
    Sketcher.Constraint("Radius", 23, Q("2.5 in")),
    Sketcher.Constraint("Radius", 27, Q("2.5 in")),
    Sketcher.Constraint("DistanceY", 24, 2, -1, 1, Q("0.0010999 in")),
    Sketcher.Constraint("DistanceX", 19, 1, 19, 2, Q("63.212141 mm")),
    Sketcher.Constraint("DistanceX", -1, 1, 9, 2, Q("4.246699 mm")),
    Sketcher.Constraint("DistanceY", -1, 1, 11, 2, Q("0.159101 mm")),
    Sketcher.Constraint("DistanceX", -1, 1, 26, 2, Q("57.276202 mm")),
    Sketcher.Constraint("DistanceY", 0, 2, 1, 2, Q("57.747399 mm")),
    Sketcher.Constraint("DistanceX", 13, 2, 16, 2, Q("22.191699 mm")),
    Sketcher.Constraint("DistanceY", 20, 2, 16, 2, Q("21.567402 mm")),
    Sketcher.Constraint("DistanceX", 18, 2, 24, 2, Q("0.087499 mm")),
    Sketcher.Constraint("DistanceX", 24, 2, 28, 2, Q("0.223801 mm")),
    Sketcher.Constraint("Distance", 0, Q("62.65765 mm")),
    Sketcher.Constraint("Distance", 8, Q("63.233139 mm")),
    Sketcher.Constraint("Distance", 10, Q("63.15847 mm")),
    Sketcher.Constraint("Distance", 14, Q("63.245711 mm")),
    Sketcher.Constraint("Distance", 17, Q("63.272741 mm")),
    Sketcher.Constraint("Distance", 18, Q("0.073288 mm")),
    Sketcher.Constraint("Distance", 21, Q("63.256291 mm")),
    Sketcher.Constraint("Distance", 22, Q("0.088622 mm")),
    Sketcher.Constraint("Distance", 25, Q("0.242689 mm")),
    Sketcher.Constraint("Distance", 30, Q("61.18933 mm")),
    Sketcher.Constraint("DistanceY", 4, 1, 4, 2, Q("63.129866 mm")),
    Sketcher.Constraint("DistanceX", 0, 2, -1, 1, Q("0.337508 mm")),
    Sketcher.Constraint("DistanceX", 1, 2, -1, 1, Q("24.575821 mm")),
    Sketcher.Constraint("DistanceX", 5, 2, -1, 1, Q("21.35056 mm")),
    Sketcher.Constraint("DistanceY", -1, 1, 7, 2, Q("0.249959 mm")),
    Sketcher.Constraint("DistanceY", -1, 1, 8, 2, Q("59.478169 mm")),
    Sketcher.Constraint("DistanceX", -1, 1, 10, 2, Q("0.022841 mm")),
    Sketcher.Constraint("DistanceX", -1, 1, 12, 2, Q("45.593528 mm")),
    Sketcher.Constraint("DistanceX", -1, 1, 13, 2, Q("27.29185 mm")),
    Sketcher.Constraint("DistanceX", -1, 1, 14, 2, Q("0.109292 mm")),
    Sketcher.Constraint("DistanceY", -1, 1, 17, 2, Q("0.142421 mm")),
    Sketcher.Constraint("DistanceX", -1, 1, 18, 2, Q("0.222088 mm")),
    Sketcher.Constraint("DistanceY", 23, 2, -1, 1, Q("5.70723 mm")),
    Sketcher.Constraint("DistanceY", 25, 2, -1, 1, Q("0.219511 mm")),
    Sketcher.Constraint("DistanceX", -1, 1, 27, 2, Q("54.645429 mm")),
    Sketcher.Constraint("DistanceY", 29, 2, -1, 1, Q("1.675648 mm")),
    Sketcher.Constraint("DistanceY", 6, 2, 0, 2, Q("0.119871 mm")),
    Sketcher.Constraint("DistanceX", 7, 2, 11, 2, Q("0.070661 mm")),
    Sketcher.Constraint("DistanceX", 6, 2, 12, 2, Q("45.837811 mm")),
    Sketcher.Constraint("DistanceY", 15, 2, 13, 2, Q("34.73858 mm")),
    Sketcher.Constraint("DistanceY", 28, 2, 21, 2, Q("0.385661 mm")),
    Sketcher.Constraint("DistanceY", 30, 2, 27, 2, Q("13.704949 mm")),
])
sketch2.setExpression("Constraints[43]", "Params.sketch2_radius")
sketch2.setExpression("Constraints[44]", "Params.sketch2_radius2")
sketch2.setExpression("Constraints[45]", "Params.sketch2_radius3")
sketch2.setExpression("Constraints[46]", "Params.sketch2_radius4")
sketch2.setExpression("Constraints[47]", "Params.sketch2_radius5")
pad2 = body.newObject("PartDesign::Pad", "Pad001")
pad2.Profile = sketch2
pad2.setExpression("Length", "Params.pad2_length")

# Sketch on XY plane
sketch3 = body.newObject("Sketcher::SketchObject", "Sketch002")
sketch3.AttachmentSupport = (doc.getObject("XY_Plane"), [""])
sketch3.MapMode = "FlatFace"
sketch3.addGeometry([
    Part.LineSegment(V(-27, -57, 0), V(0, 0, 0)),
    Part.LineSegment(V(0, 0, 0), V(-46, -44, 0)),
    Part.ArcOfCircle(Part.Circle(V(0, 0, 0), V(0, 0, 1), 64), math.radians(-136), math.radians(-115)),
], False)
sketch3.addConstraint([
    Sketcher.Constraint("Coincident", 0, 2, 1, 1),
    Sketcher.Constraint("Coincident", 1, 2, 2, 1),
    Sketcher.Constraint("Coincident", 2, 2, 0, 1),
    Sketcher.Constraint("Coincident", 2, 3, -1, 1),
    Sketcher.Constraint("Coincident", 0, 2, -1, 1),
    Sketcher.Constraint("Radius", 2, Q("2.5 in")),
    Sketcher.Constraint("DistanceX", 1, 2, -1, 1, Q("45.593528 mm")),
    Sketcher.Constraint("DistanceX", 2, 2, -1, 1, Q("27.29185 mm")),
])
sketch3.setExpression("Constraints[5]", "Params.sketch3_radius")
pad3 = body.newObject("PartDesign::Pad", "Pad002")
pad3.Profile = sketch3
pad3.setExpression("Length", "Params.pad3_length")

doc.recompute()
